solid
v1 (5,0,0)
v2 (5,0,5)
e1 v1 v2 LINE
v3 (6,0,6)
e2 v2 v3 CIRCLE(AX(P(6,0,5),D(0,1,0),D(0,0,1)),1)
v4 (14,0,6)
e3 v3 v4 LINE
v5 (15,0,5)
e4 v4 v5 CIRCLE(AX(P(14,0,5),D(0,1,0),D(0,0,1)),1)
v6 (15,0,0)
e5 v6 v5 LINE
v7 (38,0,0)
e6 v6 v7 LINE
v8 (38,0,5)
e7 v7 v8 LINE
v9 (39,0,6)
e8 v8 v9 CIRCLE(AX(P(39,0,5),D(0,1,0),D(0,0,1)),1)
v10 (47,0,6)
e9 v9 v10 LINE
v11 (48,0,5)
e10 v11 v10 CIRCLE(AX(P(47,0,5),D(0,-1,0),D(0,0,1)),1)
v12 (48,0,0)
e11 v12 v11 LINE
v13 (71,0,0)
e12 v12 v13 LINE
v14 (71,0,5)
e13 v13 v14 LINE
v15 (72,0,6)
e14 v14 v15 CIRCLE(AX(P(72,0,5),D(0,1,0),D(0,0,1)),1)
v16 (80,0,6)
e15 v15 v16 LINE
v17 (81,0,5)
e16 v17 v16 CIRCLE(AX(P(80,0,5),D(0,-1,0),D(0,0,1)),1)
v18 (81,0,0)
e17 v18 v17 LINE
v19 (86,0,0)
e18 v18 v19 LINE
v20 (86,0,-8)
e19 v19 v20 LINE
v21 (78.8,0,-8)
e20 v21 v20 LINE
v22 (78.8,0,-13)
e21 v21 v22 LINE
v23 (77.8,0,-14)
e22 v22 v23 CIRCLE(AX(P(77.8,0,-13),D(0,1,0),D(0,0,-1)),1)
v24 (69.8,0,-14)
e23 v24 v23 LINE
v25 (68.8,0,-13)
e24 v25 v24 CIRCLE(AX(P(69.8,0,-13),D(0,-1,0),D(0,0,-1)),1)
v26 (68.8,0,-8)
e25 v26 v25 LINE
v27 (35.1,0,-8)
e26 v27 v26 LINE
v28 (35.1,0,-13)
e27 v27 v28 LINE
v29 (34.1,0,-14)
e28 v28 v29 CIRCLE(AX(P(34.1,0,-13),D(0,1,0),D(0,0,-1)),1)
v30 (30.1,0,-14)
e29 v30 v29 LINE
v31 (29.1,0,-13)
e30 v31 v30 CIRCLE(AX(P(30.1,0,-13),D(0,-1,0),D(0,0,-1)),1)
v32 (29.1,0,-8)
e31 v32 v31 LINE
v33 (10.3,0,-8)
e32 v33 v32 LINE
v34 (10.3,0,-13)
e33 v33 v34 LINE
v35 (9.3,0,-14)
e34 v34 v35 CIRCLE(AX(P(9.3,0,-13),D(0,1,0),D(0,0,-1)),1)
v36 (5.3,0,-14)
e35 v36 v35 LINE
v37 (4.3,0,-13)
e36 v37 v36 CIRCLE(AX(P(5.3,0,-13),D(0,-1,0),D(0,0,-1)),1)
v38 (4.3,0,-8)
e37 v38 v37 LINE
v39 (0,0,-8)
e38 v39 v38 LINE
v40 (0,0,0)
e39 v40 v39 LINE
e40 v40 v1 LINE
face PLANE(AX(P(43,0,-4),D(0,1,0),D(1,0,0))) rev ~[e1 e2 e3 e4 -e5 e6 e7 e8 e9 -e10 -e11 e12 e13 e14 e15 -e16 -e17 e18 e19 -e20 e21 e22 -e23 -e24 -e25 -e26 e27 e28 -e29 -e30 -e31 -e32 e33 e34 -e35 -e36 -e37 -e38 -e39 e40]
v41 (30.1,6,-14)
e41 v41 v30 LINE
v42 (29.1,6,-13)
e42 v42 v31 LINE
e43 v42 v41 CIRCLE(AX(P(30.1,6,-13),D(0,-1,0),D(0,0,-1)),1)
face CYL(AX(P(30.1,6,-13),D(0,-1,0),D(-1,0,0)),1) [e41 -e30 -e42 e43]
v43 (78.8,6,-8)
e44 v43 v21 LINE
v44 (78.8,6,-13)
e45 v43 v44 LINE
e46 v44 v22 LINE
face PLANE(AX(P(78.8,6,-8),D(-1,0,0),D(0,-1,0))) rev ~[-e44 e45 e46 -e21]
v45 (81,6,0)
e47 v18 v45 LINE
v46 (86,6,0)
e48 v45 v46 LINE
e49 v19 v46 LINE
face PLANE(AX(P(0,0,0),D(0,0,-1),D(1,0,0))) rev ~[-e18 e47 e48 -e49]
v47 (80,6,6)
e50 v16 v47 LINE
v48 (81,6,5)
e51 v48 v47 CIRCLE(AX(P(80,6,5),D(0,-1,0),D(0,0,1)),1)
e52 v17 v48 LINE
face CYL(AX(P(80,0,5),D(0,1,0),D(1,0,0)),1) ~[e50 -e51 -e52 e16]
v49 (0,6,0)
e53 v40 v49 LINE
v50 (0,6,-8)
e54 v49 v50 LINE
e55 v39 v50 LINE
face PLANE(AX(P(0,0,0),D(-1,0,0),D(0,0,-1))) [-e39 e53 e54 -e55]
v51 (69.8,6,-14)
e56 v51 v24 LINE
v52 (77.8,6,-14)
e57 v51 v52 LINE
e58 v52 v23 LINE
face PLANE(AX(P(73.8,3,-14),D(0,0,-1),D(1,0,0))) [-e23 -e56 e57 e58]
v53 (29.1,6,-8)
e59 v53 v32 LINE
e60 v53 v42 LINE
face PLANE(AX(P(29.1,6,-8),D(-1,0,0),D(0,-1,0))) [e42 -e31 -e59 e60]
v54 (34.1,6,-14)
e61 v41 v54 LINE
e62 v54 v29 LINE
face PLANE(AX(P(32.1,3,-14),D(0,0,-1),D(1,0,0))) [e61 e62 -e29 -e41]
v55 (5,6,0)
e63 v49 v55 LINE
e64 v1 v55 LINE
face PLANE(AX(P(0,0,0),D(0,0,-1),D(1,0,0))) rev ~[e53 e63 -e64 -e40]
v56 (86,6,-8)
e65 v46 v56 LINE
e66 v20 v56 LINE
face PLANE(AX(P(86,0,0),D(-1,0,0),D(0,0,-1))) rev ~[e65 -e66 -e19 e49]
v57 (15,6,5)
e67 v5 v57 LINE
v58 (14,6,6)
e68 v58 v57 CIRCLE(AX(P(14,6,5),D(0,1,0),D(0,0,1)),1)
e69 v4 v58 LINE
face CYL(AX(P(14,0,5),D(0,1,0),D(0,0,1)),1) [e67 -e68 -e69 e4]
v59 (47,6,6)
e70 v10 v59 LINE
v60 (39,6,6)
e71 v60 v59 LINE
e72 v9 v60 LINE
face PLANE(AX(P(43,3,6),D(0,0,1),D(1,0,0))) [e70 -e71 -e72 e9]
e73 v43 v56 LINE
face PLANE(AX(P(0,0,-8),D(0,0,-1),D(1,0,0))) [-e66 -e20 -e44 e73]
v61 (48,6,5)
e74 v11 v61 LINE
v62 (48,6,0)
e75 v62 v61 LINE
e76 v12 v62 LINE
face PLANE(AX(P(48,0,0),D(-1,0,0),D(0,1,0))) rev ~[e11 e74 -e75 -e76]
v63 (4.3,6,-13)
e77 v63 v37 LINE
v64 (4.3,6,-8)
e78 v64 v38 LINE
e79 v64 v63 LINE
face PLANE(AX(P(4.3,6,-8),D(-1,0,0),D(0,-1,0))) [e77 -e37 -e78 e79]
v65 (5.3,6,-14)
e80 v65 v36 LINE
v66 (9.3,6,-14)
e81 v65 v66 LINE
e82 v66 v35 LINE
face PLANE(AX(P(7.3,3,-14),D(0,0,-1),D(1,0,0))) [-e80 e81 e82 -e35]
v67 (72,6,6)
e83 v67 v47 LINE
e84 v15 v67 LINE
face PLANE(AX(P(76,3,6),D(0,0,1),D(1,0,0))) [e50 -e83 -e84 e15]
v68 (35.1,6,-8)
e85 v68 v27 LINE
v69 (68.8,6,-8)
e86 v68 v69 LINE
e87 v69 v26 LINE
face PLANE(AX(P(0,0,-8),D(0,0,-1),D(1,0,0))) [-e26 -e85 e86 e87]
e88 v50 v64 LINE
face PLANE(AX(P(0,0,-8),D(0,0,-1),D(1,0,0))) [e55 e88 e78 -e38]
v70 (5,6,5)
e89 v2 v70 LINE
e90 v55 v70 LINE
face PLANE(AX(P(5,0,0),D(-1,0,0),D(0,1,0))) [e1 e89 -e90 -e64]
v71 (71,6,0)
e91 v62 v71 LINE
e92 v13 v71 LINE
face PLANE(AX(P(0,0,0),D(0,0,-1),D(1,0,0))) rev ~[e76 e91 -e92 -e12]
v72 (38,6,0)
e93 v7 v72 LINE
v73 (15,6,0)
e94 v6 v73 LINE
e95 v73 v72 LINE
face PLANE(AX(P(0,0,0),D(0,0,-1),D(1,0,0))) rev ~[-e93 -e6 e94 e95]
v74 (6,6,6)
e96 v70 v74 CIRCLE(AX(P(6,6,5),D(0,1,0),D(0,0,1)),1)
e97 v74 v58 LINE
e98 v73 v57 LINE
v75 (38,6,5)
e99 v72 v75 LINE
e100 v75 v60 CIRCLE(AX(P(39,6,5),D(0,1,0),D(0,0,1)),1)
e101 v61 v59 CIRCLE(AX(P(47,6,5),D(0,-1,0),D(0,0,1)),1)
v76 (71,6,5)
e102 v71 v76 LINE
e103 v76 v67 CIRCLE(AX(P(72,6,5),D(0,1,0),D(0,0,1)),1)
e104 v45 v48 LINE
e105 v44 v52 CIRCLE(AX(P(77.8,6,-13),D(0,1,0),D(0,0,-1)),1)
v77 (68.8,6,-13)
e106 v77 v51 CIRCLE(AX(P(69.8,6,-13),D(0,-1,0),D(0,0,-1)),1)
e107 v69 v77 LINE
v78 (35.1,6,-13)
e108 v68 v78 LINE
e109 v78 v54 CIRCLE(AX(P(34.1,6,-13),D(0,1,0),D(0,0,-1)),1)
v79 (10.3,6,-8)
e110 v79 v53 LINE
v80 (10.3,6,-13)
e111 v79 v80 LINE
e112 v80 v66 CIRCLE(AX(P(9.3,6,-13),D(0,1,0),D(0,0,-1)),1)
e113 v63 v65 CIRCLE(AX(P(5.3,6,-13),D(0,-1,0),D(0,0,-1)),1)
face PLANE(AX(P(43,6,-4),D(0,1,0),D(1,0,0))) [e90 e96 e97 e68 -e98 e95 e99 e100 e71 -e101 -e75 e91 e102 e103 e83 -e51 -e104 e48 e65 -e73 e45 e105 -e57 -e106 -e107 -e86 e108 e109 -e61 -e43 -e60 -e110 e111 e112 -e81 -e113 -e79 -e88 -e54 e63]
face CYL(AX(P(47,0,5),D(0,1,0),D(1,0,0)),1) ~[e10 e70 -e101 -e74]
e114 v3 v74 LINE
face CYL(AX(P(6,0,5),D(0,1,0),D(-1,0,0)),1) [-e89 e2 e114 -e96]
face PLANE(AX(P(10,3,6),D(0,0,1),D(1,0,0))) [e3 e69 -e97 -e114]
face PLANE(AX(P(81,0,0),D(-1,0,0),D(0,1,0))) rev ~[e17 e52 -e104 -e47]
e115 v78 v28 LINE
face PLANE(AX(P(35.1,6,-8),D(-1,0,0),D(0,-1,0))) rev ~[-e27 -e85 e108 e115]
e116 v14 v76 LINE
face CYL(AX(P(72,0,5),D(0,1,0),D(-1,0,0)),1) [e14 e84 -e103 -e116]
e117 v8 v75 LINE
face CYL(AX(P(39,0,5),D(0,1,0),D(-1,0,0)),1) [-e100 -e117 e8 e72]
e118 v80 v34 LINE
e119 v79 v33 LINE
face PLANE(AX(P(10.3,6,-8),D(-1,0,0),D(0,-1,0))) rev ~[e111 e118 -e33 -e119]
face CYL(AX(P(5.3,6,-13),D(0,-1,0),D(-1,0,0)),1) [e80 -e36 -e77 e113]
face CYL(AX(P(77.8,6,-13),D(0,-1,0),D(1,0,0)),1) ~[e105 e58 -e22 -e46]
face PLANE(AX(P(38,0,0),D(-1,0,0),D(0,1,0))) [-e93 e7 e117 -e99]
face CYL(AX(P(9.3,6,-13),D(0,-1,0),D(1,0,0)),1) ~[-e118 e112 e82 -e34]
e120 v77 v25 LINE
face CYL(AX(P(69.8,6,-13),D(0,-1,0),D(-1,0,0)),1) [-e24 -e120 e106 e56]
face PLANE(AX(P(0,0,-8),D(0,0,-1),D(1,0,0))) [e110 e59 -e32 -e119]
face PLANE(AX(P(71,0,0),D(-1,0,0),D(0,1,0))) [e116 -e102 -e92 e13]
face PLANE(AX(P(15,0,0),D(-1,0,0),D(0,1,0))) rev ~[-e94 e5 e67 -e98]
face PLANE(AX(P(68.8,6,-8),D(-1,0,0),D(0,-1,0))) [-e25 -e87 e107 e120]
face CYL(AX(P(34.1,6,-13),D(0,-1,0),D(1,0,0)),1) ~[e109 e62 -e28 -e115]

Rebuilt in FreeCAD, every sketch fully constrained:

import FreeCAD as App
import Part
import Sketcher

V = App.Vector
Q = App.Units.Quantity


def edges_at(feature, points):
    """Names of the edges that pass closest to the given points."""
    edges = feature.Shape.Edges
    near = lambda p: min(range(len(edges)), key=lambda i: edges[i].distToShape(Part.Vertex(*p))[0])
    return sorted({f"Edge{near(p) + 1}" for p in points})


def add_polygon(sketch, points):
    """Adds a closed chain of lines whose ends are joined by coincident constraints."""
    first, n = sketch.GeometryCount, len(points)
    for a, b in zip(points, points[1:] + points[:1]):
        sketch.addGeometry(Part.LineSegment(App.Vector(*a, 0), App.Vector(*b, 0)), False)
    for i in range(n):
        sketch.addConstraint(Sketcher.Constraint("Coincident", first + i, 2, first + (i + 1) % n, 1))

doc = App.newDocument("Part")
body = doc.addObject("PartDesign::Body", "Body")

sketch1 = doc.addObject("Sketcher::SketchObject", "Sketch")
body.addObject(sketch1)
sketch1.AttachmentSupport = (doc.XZ_Plane, [""])
sketch1.MapMode = "FlatFace"
add_polygon(sketch1, [(0, -8), (0, 0), (86, 0), (86, -8)])
sketch1.addConstraint([
    Sketcher.Constraint("Vertical", 0),
    Sketcher.Constraint("Horizontal", 1),
    Sketcher.Constraint("Vertical", 2),
    Sketcher.Constraint("Horizontal", 3),
    Sketcher.Constraint("Coincident", 0, 2, -1, 1),
    Sketcher.Constraint("DistanceX", 1, 1, 1, 2, Q("86 mm")),
    Sketcher.Constraint("DistanceY", 0, 1, 0, 2, Q("8 mm")),
])
pad1 = doc.addObject("PartDesign::Pad", "Pad")
body.addObject(pad1)
pad1.Profile = sketch1
pad1.Length = 6
pad1.Reversed = True

sketch2 = doc.addObject("Sketcher::SketchObject", "Sketch001")
body.addObject(sketch2)
sketch2.AttachmentSupport = (doc.XY_Plane, [""])
sketch2.MapMode = "FlatFace"
add_polygon(sketch2, [(5, 6), (5, 0), (15, 0), (15, 6)])
sketch2.addConstraint([
    Sketcher.Constraint("Vertical", 0),
    Sketcher.Constraint("Horizontal", 1),
    Sketcher.Constraint("Vertical", 2),
    Sketcher.Constraint("Horizontal", 3),
    Sketcher.Constraint("PointOnObject", 0, 2, -1),
    Sketcher.Constraint("DistanceX", 1, 1, 1, 2, Q("10 mm")),
    Sketcher.Constraint("DistanceY", 0, 2, 0, 1, Q("6 mm")),
    Sketcher.Constraint("DistanceX", -1, 1, 0, 2, Q("5 mm")),
])
pad2 = doc.addObject("PartDesign::Pad", "Pad001")
body.addObject(pad2)
pad2.Profile = sketch2
pad2.Length = 6
doc.recompute()

fillet = doc.addObject("PartDesign::Fillet", "Fillet")
body.addObject(fillet)
fillet.Base = (pad2, edges_at(pad2, [(5, 3, 6), (15, 3, 6)]))
fillet.Radius = 1

sketch3 = doc.addObject("Sketcher::SketchObject", "Sketch002")
body.addObject(sketch3)
sketch3.AttachmentSupport = (doc.XY_Plane, [""])
sketch3.MapMode = "FlatFace"
add_polygon(sketch3, [(38, 6), (38, 0), (48, 0), (48, 6)])
sketch3.addConstraint([
    Sketcher.Constraint("Vertical", 0),
    Sketcher.Constraint("Horizontal", 1),
    Sketcher.Constraint("Vertical", 2),
    Sketcher.Constraint("Horizontal", 3),
    Sketcher.Constraint("PointOnObject", 0, 2, -1),
    Sketcher.Constraint("DistanceX", 1, 1, 1, 2, Q("10 mm")),
    Sketcher.Constraint("DistanceY", 0, 2, 0, 1, Q("6 mm")),
    Sketcher.Constraint("DistanceX", -1, 1, 0, 2, Q("38 mm")),
])
pad3 = doc.addObject("PartDesign::Pad", "Pad002")
body.addObject(pad3)
pad3.Profile = sketch3
pad3.Length = 6
doc.recompute()

fillet2 = doc.addObject("PartDesign::Fillet", "Fillet001")
body.addObject(fillet2)
fillet2.Base = (pad3, edges_at(pad3, [(48, 3, 6), (38, 3, 6)]))
fillet2.Radius = 1

sketch4 = doc.addObject("Sketcher::SketchObject", "Sketch003")
body.addObject(sketch4)
sketch4.AttachmentSupport = (doc.XY_Plane, [""])
sketch4.MapMode = "FlatFace"
add_polygon(sketch4, [(71, 6), (71, 0), (81, 0), (81, 6)])
sketch4.addConstraint([
    Sketcher.Constraint("Vertical", 0),
    Sketcher.Constraint("Horizontal", 1),
    Sketcher.Constraint("Vertical", 2),
    Sketcher.Constraint("Horizontal", 3),
    Sketcher.Constraint("PointOnObject", 0, 2, -1),
    Sketcher.Constraint("DistanceX", 1, 1, 1, 2, Q("10 mm")),
    Sketcher.Constraint("DistanceY", 0, 2, 0, 1, Q("6 mm")),
    Sketcher.Constraint("DistanceX", -1, 1, 0, 2, Q("71 mm")),
])
pad4 = doc.addObject("PartDesign::Pad", "Pad003")
body.addObject(pad4)
pad4.Profile = sketch4
pad4.Length = 6
doc.recompute()

fillet3 = doc.addObject("PartDesign::Fillet", "Fillet002")
body.addObject(fillet3)
fillet3.Base = (pad4, edges_at(pad4, [(81, 3, 6), (71, 3, 6)]))
fillet3.Radius = 1

sketch5 = doc.addObject("Sketcher::SketchObject", "Sketch004")
body.addObject(sketch5)
sketch5.AttachmentSupport = (doc.XY_Plane, [""])
sketch5.MapMode = "FlatFace"
sketch5.AttachmentOffset = App.Placement(V(0, 0, -8), App.Rotation())
add_polygon(sketch5, [(68.8, 0), (68.8, 6), (78.8, 6), (78.8, 0)])
sketch5.addConstraint([
    Sketcher.Constraint("Vertical", 0),
    Sketcher.Constraint("Horizontal", 1),
    Sketcher.Constraint("Vertical", 2),
    Sketcher.Constraint("Horizontal", 3),
    Sketcher.Constraint("PointOnObject", 2, 2, -1),
    Sketcher.Constraint("DistanceX", 1, 1, 1, 2, Q("10 mm")),
    Sketcher.Constraint("DistanceY", 0, 1, 0, 2, Q("6 mm")),
    Sketcher.Constraint("DistanceX", -1, 1, 0, 2, Q("68.8 mm")),
])
pad5 = doc.addObject("PartDesign::Pad", "Pad004")
body.addObject(pad5)
pad5.Profile = sketch5
pad5.Length = 6
pad5.Reversed = True
doc.recompute()

fillet4 = doc.addObject("PartDesign::Fillet", "Fillet003")
body.addObject(fillet4)
fillet4.Base = (pad5, edges_at(pad5, [(68.8, 3, -14), (78.8, 3, -14)]))
fillet4.Radius = 1

sketch6 = doc.addObject("Sketcher::SketchObject", "Sketch005")
body.addObject(sketch6)
sketch6.AttachmentSupport = (doc.XY_Plane, [""])
sketch6.MapMode = "FlatFace"
sketch6.AttachmentOffset = App.Placement(V(0, 0, -8), App.Rotation())
add_polygon(sketch6, [(29.1, 0), (29.1, 6), (35.1, 6), (35.1, 0)])
sketch6.addConstraint([
    Sketcher.Constraint("Vertical", 0),
    Sketcher.Constraint("Horizontal", 1),
    Sketcher.Constraint("Vertical", 2),
    Sketcher.Constraint("Horizontal", 3),
    Sketcher.Constraint("PointOnObject", 2, 2, -1),
    Sketcher.Constraint("Equal", 3, 0),
    Sketcher.Constraint("DistanceX", 1, 1, 1, 2, Q("6 mm")),
    Sketcher.Constraint("DistanceX", -1, 1, 0, 2, Q("29.1 mm")),
])
pad6 = doc.addObject("PartDesign::Pad", "Pad005")
body.addObject(pad6)
pad6.Profile = sketch6
pad6.Length = 6
pad6.Reversed = True
doc.recompute()

fillet5 = doc.addObject("PartDesign::Fillet", "Fillet004")
body.addObject(fillet5)
fillet5.Base = (pad6, edges_at(pad6, [(35.1, 3, -14), (29.1, 3, -14)]))
fillet5.Radius = 1

sketch7 = doc.addObject("Sketcher::SketchObject", "Sketch006")
body.addObject(sketch7)
sketch7.AttachmentSupport = (doc.XY_Plane, [""])
sketch7.MapMode = "FlatFace"
sketch7.AttachmentOffset = App.Placement(V(0, 0, -8), App.Rotation())
add_polygon(sketch7, [(4.3, 0), (4.3, 6), (10.3, 6), (10.3, 0)])
sketch7.addConstraint([
    Sketcher.Constraint("Vertical", 0),
    Sketcher.Constraint("Horizontal", 1),
    Sketcher.Constraint("Vertical", 2),
    Sketcher.Constraint("Horizontal", 3),
    Sketcher.Constraint("PointOnObject", 2, 2, -1),
    Sketcher.Constraint("Equal", 3, 0),
    Sketcher.Constraint("DistanceX", 1, 1, 1, 2, Q("6 mm")),
    Sketcher.Constraint("DistanceX", -1, 1, 0, 2, Q("4.3 mm")),
])
pad7 = doc.addObject("PartDesign::Pad", "Pad006")
body.addObject(pad7)
pad7.Profile = sketch7
pad7.Length = 6
pad7.Reversed = True
doc.recompute()

fillet6 = doc.addObject("PartDesign::Fillet", "Fillet005")
body.addObject(fillet6)
fillet6.Base = (pad7, edges_at(pad7, [(10.3, 3, -14), (4.3, 3, -14)]))
fillet6.Radius = 1

doc.recompute()
